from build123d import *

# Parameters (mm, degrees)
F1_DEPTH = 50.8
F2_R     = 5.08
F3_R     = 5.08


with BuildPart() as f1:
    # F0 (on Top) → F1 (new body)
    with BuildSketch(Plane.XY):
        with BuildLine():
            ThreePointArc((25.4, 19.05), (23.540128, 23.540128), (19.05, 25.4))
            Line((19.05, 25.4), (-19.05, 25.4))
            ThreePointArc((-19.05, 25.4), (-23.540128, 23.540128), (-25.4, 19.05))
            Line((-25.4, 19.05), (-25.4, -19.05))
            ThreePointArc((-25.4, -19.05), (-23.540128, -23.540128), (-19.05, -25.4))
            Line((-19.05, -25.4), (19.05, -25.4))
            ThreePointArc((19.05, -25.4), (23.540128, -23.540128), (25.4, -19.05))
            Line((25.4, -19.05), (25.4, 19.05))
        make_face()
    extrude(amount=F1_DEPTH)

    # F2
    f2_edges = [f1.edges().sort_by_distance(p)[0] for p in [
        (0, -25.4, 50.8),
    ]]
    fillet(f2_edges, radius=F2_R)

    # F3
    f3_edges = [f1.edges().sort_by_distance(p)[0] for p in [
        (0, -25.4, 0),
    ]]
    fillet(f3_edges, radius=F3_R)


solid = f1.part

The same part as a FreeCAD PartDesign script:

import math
import FreeCAD as App
import Part
import Sketcher
from FreeCAD import Vector
Q = App.Units.Quantity


def edges_at(feature, points):
    """Names of the edges that pass closest to the given points."""
    edges = feature.Shape.Edges
    near = lambda p: min(range(len(edges)), key=lambda i: edges[i].distToShape(Part.Vertex(*p))[0])
    return sorted({f"Edge{near(p) + 1}" for p in points})

doc = App.newDocument("Part")
body = doc.addObject("PartDesign::Body", "Body")

# Sketch on XY plane
sketch1 = body.newObject("Sketcher::SketchObject", "Sketch")
sketch1.AttachmentSupport = (doc.getObject("XY_Plane"), [""])
sketch1.MapMode = "FlatFace"
sketch1.addGeometry([
    Part.ArcOfCircle(Part.Circle(Vector(19.05, 19.05, 0), Vector(0, 0, 1), 6.35), math.radians(0.000002), math.radians(89.999998)),  # 0
    Part.LineSegment(Vector(19.05, 25.4, 0), Vector(-19.05, 25.4, 0)),  # 1
    Part.ArcOfCircle(Part.Circle(Vector(-19.05, 19.05, 0), Vector(0, 0, 1), 6.35), math.radians(90.000002), math.radians(179.999998)),  # 2
    Part.LineSegment(Vector(-25.4, 19.05, 0), Vector(-25.4, -19.05, 0)),  # 3
    Part.ArcOfCircle(Part.Circle(Vector(-19.05, -19.05, 0), Vector(0, 0, 1), 6.35), math.radians(-179.999998), math.radians(-90.000002)),  # 4
    Part.LineSegment(Vector(-19.05, -25.4, 0), Vector(19.05, -25.4, 0)),  # 5
    Part.ArcOfCircle(Part.Circle(Vector(19.05, -19.05, 0), Vector(0, 0, 1), 6.35), math.radians(-89.999998), math.radians(-0.000002)),  # 6
    Part.LineSegment(Vector(25.4, -19.05, 0), Vector(25.4, 19.05, 0)),  # 7
], False)
sketch1.addConstraint([
    Sketcher.Constraint("Tangent", 0, 2, 1, 1),
    Sketcher.Constraint("Tangent", 1, 2, 2, 1),
    Sketcher.Constraint("Tangent", 2, 2, 3, 1),
    Sketcher.Constraint("Tangent", 3, 2, 4, 1),
    Sketcher.Constraint("Tangent", 4, 2, 5, 1),
    Sketcher.Constraint("Tangent", 5, 2, 6, 1),
    Sketcher.Constraint("Tangent", 6, 2, 7, 1),
    Sketcher.Constraint("Tangent", 7, 2, 0, 1),
    Sketcher.Constraint("Horizontal", 1),
    Sketcher.Constraint("Vertical", 3),
    Sketcher.Constraint("Horizontal", 5),
    Sketcher.Constraint("Vertical", 7),
    Sketcher.Constraint("Equal", 0, 2),
    Sketcher.Constraint("Equal", 2, 4),
    Sketcher.Constraint("Equal", 4, 6),
    Sketcher.Constraint("Symmetric", 0, 3, 4, 3, -1, 1),
    Sketcher.Constraint("Equal", 5, 3),
    Sketcher.Constraint("Radius", 0, Q("0.25 in")),
    Sketcher.Constraint("DistanceX", 1, 2, 1, 1, Q("1.5 in")),
])
pad1 = body.newObject("PartDesign::Pad", "Pad")
pad1.Profile = sketch1
pad1.Length = Q("2 in")
doc.recompute()

fillet = body.newObject("PartDesign::Fillet", "Fillet")
fillet.Base = (pad1, edges_at(pad1, [(0, -25.4, 50.8)]))
fillet.Radius = Q("0.2 in")
doc.recompute()

fillet2 = body.newObject("PartDesign::Fillet", "Fillet001")
fillet2.Base = (fillet, edges_at(fillet, [(0, -25.4, 0)]))
fillet2.Radius = Q("0.2 in")

doc.recompute()
